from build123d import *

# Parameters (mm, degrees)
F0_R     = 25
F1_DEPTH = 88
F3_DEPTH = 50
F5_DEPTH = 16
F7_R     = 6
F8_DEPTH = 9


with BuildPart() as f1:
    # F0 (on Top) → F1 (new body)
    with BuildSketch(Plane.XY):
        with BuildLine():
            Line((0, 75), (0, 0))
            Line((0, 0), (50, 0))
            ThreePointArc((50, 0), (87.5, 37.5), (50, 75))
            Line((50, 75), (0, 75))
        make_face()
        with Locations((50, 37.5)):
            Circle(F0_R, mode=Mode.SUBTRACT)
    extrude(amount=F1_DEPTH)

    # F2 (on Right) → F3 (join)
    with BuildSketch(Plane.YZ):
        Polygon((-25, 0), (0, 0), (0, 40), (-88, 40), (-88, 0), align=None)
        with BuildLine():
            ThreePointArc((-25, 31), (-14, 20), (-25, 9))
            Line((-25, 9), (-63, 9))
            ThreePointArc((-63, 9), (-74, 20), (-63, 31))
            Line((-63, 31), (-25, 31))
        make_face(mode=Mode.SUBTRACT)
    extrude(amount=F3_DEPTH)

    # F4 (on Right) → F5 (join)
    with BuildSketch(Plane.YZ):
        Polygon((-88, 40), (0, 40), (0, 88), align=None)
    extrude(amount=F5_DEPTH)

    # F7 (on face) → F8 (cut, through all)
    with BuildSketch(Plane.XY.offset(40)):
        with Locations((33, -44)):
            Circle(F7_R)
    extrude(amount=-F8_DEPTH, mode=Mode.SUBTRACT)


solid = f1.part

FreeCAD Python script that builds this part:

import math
import FreeCAD as App
import Part
import Sketcher

V = App.Vector

doc = App.newDocument("Part")
params = doc.addObject("Spreadsheet::Sheet", "Params")
for row, (alias, value) in enumerate([
    ("sketch1_diameter", "50 mm"),
    ("sketch1_radius", "37.5 mm"),
    ("sketch1_width", "50 mm"),
    ("pad1_length", "88 mm"),
    ("sketch2_radius", "11 mm"),
    ("sketch2_width", "88 mm"),
    ("sketch2_width2", "38 mm"),
    ("sketch2_height", "40 mm"),
    ("pad2_length", "50 mm"),
    ("sketch3_width", "88 mm"),
    ("sketch3_height", "48 mm"),
    ("pad3_length", "16 mm"),
    ("sketch4_diameter", "12 mm"),
    ("pocket1_length", "9 mm"),
], start=1):
    params.set(f"A{row}", alias)
    params.set(f"B{row}", "=" + value)
    params.setAlias(f"B{row}", alias)

body = doc.addObject("PartDesign::Body", "Body")

# Sketch on XY plane
sketch1 = body.newObject("Sketcher::SketchObject", "Sketch")
sketch1.AttachmentSupport = (doc.getObject("XY_Plane"), [""])
sketch1.MapMode = "FlatFace"
sketch1.addGeometry([
    Part.LineSegment(V(0, 75, 0), V(0, 0, 0)),  # 0
    Part.LineSegment(V(0, 0, 0), V(50, 0, 0)),  # 1
    Part.ArcOfCircle(Part.Circle(V(50, 38, 0), V(0, 0, 1), 38), math.radians(-90), math.radians(90)),  # 2
    Part.LineSegment(V(50, 75, 0), V(0, 75, 0)),  # 3
    Part.Circle(V(50, 38, 0), V(0, 0, 1), 25),  # 4
], False)
sketch1.addConstraint([
    Sketcher.Constraint("Coincident", 0, 2, 1, 1),
    Sketcher.Constraint("Tangent", 1, 2, 2, 1),
    Sketcher.Constraint("Tangent", 2, 2, 3, 1),
    Sketcher.Constraint("Coincident", 3, 2, 0, 1),
    Sketcher.Constraint("Vertical", 0),
    Sketcher.Constraint("Horizontal", 1),
    Sketcher.Constraint("Horizontal", 3),
    Sketcher.Constraint("Coincident", 0, 2, -1, 1),
    Sketcher.Constraint("Coincident", 4, 3, 2, 3),
    Sketcher.Constraint("Diameter", 4, 50.0),
    Sketcher.Constraint("Radius", 2, 37.5),
    Sketcher.Constraint("DistanceX", 1, 1, 1, 2, 50.0),
])
sketch1.setExpression("Constraints[9]", "Params.sketch1_diameter")
sketch1.setExpression("Constraints[10]", "Params.sketch1_radius")
sketch1.setExpression("Constraints[11]", "Params.sketch1_width")
pad1 = body.newObject("PartDesign::Pad", "Pad")
pad1.Profile = sketch1
pad1.setExpression("Length", "Params.pad1_length")

# Sketch on YZ plane
sketch2 = body.newObject("Sketcher::SketchObject", "Sketch001")
sketch2.AttachmentSupport = (doc.getObject("YZ_Plane"), [""])
sketch2.MapMode = "FlatFace"
sketch2.addGeometry([
    Part.LineSegment(V(0, 0, 0), V(0, 40, 0)),  # 0
    Part.LineSegment(V(0, 40, 0), V(-88, 40, 0)),  # 1
    Part.LineSegment(V(-88, 40, 0), V(-88, 0, 0)),  # 2
    Part.LineSegment(V(-88, 0, 0), V(0, 0, 0)),  # 3
    Part.LineSegment(V(-63, 31, 0), V(-25, 31, 0)),  # 4
    Part.ArcOfCircle(Part.Circle(V(-25, 20, 0), V(0, 0, 1), 11), math.radians(-90), math.radians(90)),  # 5
    Part.LineSegment(V(-25, 9, 0), V(-63, 9, 0)),  # 6
    Part.ArcOfCircle(Part.Circle(V(-63, 20, 0), V(0, 0, 1), 11), math.radians(90), math.radians(270)),  # 7
], False)
sketch2.addConstraint([
    Sketcher.Constraint("Coincident", 0, 2, 1, 1),
    Sketcher.Constraint("Coincident", 1, 2, 2, 1),
    Sketcher.Constraint("Coincident", 2, 2, 3, 1),
    Sketcher.Constraint("Coincident", 3, 2, 0, 1),
    Sketcher.Constraint("Tangent", 4, 2, 5, 2),
    Sketcher.Constraint("Tangent", 5, 1, 6, 1),
    Sketcher.Constraint("Tangent", 6, 2, 7, 2),
    Sketcher.Constraint("Tangent", 7, 1, 4, 1),
    Sketcher.Constraint("Vertical", 0),
    Sketcher.Constraint("Horizontal", 1),
    Sketcher.Constraint("Vertical", 2),
    Sketcher.Constraint("Horizontal", 3),
    Sketcher.Constraint("Horizontal", 4),
    Sketcher.Constraint("Horizontal", 6),
    Sketcher.Constraint("Coincident", 3, 2, -1, 1),
    Sketcher.Constraint("Radius", 5, 11.0),
    Sketcher.Constraint("DistanceX", 1, 2, 1, 1, 88.0),
    Sketcher.Constraint("DistanceX", 4, 1, 4, 2, 38.0),
    Sketcher.Constraint("DistanceY", 0, 1, 0, 2, 40.0),
    Sketcher.Constraint("DistanceX", 5, 3, -1, 1, 25.0),
    Sketcher.Constraint("DistanceY", -1, 1, 5, 3, 20.0),
])
sketch2.setExpression("Constraints[15]", "Params.sketch2_radius")
sketch2.setExpression("Constraints[16]", "Params.sketch2_width")
sketch2.setExpression("Constraints[17]", "Params.sketch2_width2")
sketch2.setExpression("Constraints[18]", "Params.sketch2_height")
pad2 = body.newObject("PartDesign::Pad", "Pad001")
pad2.Profile = sketch2
pad2.setExpression("Length", "Params.pad2_length")

# Sketch on YZ plane
sketch3 = body.newObject("Sketcher::SketchObject", "Sketch002")
sketch3.AttachmentSupport = (doc.getObject("YZ_Plane"), [""])
sketch3.MapMode = "FlatFace"
sketch3.addGeometry([
    Part.LineSegment(V(-88, 40, 0), V(0, 40, 0)),
    Part.LineSegment(V(0, 40, 0), V(0, 88, 0)),
    Part.LineSegment(V(0, 88, 0), V(-88, 40, 0)),
], False)
sketch3.addConstraint([
    Sketcher.Constraint("Coincident", 0, 2, 1, 1),
    Sketcher.Constraint("Coincident", 1, 2, 2, 1),
    Sketcher.Constraint("Coincident", 2, 2, 0, 1),
    Sketcher.Constraint("Horizontal", 0),
    Sketcher.Constraint("Vertical", 1),
    Sketcher.Constraint("PointOnObject", 0, 2, -2),
    Sketcher.Constraint("DistanceX", 0, 1, 0, 2, 88.0),
    Sketcher.Constraint("DistanceY", 1, 1, 1, 2, 48.0),
    Sketcher.Constraint("DistanceY", -1, 1, 0, 2, 40.0),
])
sketch3.setExpression("Constraints[6]", "Params.sketch3_width")
sketch3.setExpression("Constraints[7]", "Params.sketch3_height")
pad3 = body.newObject("PartDesign::Pad", "Pad002")
pad3.Profile = sketch3
pad3.setExpression("Length", "Params.pad3_length")

# Sketch on XY plane
sketch4 = body.newObject("Sketcher::SketchObject", "Sketch003")
sketch4.AttachmentSupport = (doc.getObject("XY_Plane"), [""])
sketch4.MapMode = "FlatFace"
sketch4.AttachmentOffset = App.Placement(V(0, 0, 40), App.Rotation())
sketch4.addGeometry(Part.Circle(V(33, -44, 0), V(0, 0, 1), 6), False)
sketch4.addConstraint([
    Sketcher.Constraint("Diameter", 0, 12.0),
    Sketcher.Constraint("DistanceX", -1, 1, 0, 3, 33.0),
    Sketcher.Constraint("DistanceY", 0, 3, -1, 1, 44.0),
])
sketch4.setExpression("Constraints[0]", "Params.sketch4_diameter")
pocket1 = body.newObject("PartDesign::Pocket", "Pocket")
pocket1.Profile = sketch4
pocket1.setExpression("Length", "Params.pocket1_length")

doc.recompute()
